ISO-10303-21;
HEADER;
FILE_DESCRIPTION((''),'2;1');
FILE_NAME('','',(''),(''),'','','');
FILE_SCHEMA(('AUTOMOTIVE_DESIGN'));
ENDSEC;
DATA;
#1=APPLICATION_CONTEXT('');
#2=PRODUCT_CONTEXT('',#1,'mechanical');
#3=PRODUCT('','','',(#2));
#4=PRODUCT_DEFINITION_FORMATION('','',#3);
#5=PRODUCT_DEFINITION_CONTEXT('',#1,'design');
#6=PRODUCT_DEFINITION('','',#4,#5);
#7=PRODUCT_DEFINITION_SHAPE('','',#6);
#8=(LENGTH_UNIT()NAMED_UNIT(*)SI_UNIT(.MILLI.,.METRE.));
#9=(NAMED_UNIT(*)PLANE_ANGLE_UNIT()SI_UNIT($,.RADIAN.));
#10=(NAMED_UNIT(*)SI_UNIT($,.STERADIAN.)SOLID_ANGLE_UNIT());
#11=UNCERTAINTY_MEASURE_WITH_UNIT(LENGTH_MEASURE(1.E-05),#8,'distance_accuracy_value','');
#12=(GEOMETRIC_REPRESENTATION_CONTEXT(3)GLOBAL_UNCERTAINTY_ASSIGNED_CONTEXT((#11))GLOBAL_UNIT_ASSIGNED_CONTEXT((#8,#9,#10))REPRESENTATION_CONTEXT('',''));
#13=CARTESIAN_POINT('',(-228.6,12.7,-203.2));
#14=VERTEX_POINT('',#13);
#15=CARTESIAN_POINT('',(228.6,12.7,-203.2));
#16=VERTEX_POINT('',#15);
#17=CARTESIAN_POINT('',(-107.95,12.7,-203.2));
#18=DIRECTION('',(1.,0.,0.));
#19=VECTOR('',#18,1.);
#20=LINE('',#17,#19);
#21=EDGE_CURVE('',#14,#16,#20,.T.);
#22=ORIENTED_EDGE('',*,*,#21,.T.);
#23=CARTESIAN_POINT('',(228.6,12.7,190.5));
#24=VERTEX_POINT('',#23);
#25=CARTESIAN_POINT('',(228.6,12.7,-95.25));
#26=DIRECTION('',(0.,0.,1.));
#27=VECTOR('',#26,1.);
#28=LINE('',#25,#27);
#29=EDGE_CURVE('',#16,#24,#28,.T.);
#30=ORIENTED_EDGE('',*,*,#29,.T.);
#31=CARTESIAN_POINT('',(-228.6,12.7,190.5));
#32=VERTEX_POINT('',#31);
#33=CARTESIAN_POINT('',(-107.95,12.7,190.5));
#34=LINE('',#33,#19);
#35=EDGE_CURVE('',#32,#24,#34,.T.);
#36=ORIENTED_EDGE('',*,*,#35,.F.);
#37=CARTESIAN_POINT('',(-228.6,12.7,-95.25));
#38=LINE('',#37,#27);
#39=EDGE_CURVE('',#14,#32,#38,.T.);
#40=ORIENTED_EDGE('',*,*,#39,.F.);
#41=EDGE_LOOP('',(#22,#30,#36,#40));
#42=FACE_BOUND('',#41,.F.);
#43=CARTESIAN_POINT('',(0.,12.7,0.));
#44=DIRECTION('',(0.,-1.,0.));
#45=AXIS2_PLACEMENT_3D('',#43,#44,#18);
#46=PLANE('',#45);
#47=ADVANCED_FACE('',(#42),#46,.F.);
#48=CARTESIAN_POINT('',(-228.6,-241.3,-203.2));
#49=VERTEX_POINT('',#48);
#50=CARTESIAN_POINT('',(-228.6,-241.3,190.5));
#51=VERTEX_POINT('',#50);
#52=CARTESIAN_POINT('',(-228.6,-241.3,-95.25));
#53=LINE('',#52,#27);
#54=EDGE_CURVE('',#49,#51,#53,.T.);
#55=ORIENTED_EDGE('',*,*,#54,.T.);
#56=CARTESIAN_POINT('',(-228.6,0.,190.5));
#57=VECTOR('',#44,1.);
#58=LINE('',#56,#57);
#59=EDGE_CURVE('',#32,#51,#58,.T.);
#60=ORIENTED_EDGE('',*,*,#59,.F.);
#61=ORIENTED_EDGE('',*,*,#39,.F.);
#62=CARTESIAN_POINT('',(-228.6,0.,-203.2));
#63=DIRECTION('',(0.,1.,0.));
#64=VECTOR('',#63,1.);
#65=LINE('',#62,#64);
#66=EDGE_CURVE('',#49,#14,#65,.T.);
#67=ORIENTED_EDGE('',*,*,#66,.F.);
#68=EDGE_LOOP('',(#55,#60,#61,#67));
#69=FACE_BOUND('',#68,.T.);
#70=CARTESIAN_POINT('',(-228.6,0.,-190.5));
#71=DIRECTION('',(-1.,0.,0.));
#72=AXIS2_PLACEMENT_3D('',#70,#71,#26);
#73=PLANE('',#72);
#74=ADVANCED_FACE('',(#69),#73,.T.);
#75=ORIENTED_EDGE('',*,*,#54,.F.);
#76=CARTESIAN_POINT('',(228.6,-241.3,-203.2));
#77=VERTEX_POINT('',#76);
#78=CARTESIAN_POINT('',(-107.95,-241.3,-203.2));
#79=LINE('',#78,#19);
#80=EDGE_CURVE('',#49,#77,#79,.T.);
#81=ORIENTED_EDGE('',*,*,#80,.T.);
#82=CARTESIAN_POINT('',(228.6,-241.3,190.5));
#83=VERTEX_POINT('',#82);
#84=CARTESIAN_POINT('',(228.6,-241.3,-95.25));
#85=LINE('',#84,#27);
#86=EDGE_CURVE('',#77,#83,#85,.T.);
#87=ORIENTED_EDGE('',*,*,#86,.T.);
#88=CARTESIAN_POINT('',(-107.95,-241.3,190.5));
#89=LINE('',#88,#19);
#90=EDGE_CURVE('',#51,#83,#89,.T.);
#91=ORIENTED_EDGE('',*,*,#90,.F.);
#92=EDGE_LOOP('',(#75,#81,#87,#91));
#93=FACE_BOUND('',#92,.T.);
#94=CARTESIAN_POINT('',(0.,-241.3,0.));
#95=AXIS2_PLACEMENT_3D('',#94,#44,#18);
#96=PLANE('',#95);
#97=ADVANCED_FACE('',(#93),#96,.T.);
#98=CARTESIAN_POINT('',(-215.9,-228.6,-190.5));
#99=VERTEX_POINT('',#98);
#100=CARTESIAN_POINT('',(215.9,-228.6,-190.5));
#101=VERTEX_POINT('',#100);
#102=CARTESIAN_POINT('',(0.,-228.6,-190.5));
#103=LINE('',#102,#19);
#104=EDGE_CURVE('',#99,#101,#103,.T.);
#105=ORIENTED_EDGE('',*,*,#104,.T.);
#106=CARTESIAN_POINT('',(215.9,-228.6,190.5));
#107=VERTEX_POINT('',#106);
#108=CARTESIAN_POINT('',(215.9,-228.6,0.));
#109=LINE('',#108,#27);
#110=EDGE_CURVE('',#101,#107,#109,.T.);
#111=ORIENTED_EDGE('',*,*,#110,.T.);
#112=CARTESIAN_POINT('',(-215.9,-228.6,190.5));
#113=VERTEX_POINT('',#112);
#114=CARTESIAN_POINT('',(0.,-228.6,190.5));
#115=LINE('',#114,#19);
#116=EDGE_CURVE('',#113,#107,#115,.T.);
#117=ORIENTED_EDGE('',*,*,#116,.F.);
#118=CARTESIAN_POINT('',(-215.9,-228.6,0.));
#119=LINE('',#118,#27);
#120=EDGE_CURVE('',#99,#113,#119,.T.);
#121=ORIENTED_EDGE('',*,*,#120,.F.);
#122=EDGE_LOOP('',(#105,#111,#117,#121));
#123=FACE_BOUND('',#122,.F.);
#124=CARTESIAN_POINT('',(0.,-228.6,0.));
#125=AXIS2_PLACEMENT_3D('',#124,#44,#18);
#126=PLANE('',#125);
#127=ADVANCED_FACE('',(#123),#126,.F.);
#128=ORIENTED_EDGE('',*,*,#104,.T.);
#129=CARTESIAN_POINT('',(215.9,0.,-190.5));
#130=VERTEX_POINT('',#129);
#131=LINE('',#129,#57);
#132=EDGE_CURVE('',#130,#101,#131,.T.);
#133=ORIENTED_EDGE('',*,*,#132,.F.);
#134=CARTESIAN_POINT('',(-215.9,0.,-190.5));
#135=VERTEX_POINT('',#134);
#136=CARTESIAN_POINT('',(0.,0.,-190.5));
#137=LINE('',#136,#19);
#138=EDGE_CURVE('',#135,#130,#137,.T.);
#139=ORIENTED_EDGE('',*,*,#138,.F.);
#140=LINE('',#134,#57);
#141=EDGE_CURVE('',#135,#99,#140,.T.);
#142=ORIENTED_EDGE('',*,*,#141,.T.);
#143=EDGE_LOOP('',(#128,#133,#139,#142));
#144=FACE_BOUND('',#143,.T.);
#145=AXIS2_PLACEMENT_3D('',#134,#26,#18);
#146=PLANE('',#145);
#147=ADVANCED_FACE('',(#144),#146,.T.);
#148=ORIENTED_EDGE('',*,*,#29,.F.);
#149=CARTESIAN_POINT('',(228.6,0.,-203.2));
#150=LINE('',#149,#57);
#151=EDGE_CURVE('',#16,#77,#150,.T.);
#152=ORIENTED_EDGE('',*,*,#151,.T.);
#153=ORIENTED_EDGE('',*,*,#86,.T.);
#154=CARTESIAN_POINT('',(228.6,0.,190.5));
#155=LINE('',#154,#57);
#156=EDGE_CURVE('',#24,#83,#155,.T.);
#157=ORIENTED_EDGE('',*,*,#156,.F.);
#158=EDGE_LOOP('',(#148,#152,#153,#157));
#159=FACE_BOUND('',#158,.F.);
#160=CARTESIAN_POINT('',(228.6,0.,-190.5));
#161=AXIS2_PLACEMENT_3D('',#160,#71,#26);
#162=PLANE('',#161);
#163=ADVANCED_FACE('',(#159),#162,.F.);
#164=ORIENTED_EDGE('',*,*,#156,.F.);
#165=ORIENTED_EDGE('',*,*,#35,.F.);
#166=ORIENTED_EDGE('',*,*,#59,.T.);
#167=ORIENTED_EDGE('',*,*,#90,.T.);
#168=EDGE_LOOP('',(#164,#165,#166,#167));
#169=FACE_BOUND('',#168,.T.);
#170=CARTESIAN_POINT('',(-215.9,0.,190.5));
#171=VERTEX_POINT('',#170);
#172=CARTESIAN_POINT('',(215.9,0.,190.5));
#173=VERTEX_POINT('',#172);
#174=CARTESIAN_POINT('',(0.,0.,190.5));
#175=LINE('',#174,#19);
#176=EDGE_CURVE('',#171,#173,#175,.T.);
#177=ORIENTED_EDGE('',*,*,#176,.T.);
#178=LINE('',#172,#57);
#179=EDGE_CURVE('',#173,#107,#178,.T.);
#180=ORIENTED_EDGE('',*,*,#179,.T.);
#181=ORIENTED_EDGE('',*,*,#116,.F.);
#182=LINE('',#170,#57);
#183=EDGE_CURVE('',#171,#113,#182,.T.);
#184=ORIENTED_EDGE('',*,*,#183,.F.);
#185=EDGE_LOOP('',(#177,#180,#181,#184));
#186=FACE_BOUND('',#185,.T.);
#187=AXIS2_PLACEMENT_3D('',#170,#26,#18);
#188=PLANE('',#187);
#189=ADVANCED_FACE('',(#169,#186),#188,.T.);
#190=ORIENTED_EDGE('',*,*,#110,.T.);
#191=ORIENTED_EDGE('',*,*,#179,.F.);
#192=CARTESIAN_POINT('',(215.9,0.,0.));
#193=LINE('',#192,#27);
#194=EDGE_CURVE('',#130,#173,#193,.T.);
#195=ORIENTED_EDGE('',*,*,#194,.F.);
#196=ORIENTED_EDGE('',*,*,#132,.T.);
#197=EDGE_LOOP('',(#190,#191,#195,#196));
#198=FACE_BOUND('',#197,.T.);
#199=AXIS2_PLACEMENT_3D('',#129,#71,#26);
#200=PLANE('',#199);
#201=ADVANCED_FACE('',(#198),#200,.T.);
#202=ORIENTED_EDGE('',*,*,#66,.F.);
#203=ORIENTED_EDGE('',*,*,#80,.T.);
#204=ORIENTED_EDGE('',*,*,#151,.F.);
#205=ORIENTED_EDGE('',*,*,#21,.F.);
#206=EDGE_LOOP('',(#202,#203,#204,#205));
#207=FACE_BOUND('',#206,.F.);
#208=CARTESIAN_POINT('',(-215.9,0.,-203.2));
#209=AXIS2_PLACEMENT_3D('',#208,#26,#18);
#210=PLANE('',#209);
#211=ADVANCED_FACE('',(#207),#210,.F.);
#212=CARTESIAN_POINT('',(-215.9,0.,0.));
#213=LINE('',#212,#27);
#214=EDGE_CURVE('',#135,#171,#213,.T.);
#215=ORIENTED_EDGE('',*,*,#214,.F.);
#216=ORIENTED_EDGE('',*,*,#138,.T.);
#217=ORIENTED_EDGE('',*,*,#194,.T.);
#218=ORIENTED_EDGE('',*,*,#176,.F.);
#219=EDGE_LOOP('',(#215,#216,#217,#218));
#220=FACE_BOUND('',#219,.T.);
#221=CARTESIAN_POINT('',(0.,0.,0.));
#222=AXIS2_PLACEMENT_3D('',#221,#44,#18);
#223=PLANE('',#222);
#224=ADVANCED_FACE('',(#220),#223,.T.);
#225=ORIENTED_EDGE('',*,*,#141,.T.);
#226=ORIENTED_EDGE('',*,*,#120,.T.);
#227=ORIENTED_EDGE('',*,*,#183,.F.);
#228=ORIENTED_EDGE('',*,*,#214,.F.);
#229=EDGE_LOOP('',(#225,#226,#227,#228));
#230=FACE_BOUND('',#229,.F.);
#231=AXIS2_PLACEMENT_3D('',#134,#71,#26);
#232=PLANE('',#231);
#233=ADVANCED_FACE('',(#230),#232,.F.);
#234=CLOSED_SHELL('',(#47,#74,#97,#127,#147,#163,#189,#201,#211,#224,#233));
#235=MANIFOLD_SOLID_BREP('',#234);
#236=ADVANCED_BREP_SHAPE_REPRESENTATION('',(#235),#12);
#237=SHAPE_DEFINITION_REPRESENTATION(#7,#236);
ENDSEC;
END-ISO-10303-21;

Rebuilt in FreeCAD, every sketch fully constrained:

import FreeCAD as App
import Part
import Sketcher
from FreeCAD import Vector
Q = App.Units.Quantity


def faces_at(feature, points):
    """Names of the faces that lie closest to the given points."""
    faces = feature.Shape.Faces
    near = lambda p: min(range(len(faces)), key=lambda i: faces[i].distToShape(Part.Vertex(*p))[0])
    return sorted({f"Face{near(p) + 1}" for p in points})


def add_polygon(sketch, points):
    """Adds a closed chain of lines whose ends are joined by coincident constraints."""
    first, n = sketch.GeometryCount, len(points)
    for a, b in zip(points, points[1:] + points[:1]):
        sketch.addGeometry(Part.LineSegment(App.Vector(*a, 0), App.Vector(*b, 0)), False)
    for i in range(n):
        sketch.addConstraint(Sketcher.Constraint("Coincident", first + i, 2, first + (i + 1) % n, 1))

doc = App.newDocument("Part")
params = doc.addObject("Spreadsheet::Sheet", "Params")
for row, (alias, value) in enumerate([
    ("sketch1_width", "17 in"),
    ("sketch1_height", "15 in"),
    ("pad1_length", "9 in"),
    ("thickness_wall", "0.5 in"),
], start=1):
    params.set(f"A{row}", alias)
    params.set(f"B{row}", "=" + value)
    params.setAlias(f"B{row}", alias)

body = doc.addObject("PartDesign::Body", "Body")

# Sketch on XZ plane
sketch1 = doc.addObject("Sketcher::SketchObject", "Sketch")
body.addObject(sketch1)
sketch1.AttachmentSupport = (doc.XZ_Plane, [""])
sketch1.MapMode = "FlatFace"
add_polygon(sketch1, [(-216, 190), (-216, -190), (216, -190), (216, 190)])  # lines 0-3
sketch1.addConstraint(Sketcher.Constraint("Vertical", 0))
sketch1.addConstraint(Sketcher.Constraint("Horizontal", 1))
sketch1.addConstraint(Sketcher.Constraint("Vertical", 2))
sketch1.addConstraint(Sketcher.Constraint("Horizontal", 3))
sketch1.addConstraint(Sketcher.Constraint("Symmetric", 0, 2, 2, 2, -1, 1))
sketch1.addConstraint(Sketcher.Constraint("DistanceX", 1, 1, 1, 2, Q("17 in")))
sketch1.addConstraint(Sketcher.Constraint("DistanceY", 0, 2, 0, 1, Q("15 in")))
sketch1.setExpression("Constraints[9]", "Params.sketch1_width")
sketch1.setExpression("Constraints[10]", "Params.sketch1_height")
pad1 = doc.addObject("PartDesign::Pad", "Pad")
body.addObject(pad1)
pad1.Profile = sketch1
pad1.setExpression("Length", "Params.pad1_length")
doc.recompute()

thickness = doc.addObject("PartDesign::Thickness", "Thickness")
body.addObject(thickness)
thickness.Base = (pad1, faces_at(pad1, [(0, -114.3, 190.5)]))
thickness.setExpression("Value", "Params.thickness_wall")
thickness.Reversed = False
thickness.Join = "Intersection"

doc.recompute()
